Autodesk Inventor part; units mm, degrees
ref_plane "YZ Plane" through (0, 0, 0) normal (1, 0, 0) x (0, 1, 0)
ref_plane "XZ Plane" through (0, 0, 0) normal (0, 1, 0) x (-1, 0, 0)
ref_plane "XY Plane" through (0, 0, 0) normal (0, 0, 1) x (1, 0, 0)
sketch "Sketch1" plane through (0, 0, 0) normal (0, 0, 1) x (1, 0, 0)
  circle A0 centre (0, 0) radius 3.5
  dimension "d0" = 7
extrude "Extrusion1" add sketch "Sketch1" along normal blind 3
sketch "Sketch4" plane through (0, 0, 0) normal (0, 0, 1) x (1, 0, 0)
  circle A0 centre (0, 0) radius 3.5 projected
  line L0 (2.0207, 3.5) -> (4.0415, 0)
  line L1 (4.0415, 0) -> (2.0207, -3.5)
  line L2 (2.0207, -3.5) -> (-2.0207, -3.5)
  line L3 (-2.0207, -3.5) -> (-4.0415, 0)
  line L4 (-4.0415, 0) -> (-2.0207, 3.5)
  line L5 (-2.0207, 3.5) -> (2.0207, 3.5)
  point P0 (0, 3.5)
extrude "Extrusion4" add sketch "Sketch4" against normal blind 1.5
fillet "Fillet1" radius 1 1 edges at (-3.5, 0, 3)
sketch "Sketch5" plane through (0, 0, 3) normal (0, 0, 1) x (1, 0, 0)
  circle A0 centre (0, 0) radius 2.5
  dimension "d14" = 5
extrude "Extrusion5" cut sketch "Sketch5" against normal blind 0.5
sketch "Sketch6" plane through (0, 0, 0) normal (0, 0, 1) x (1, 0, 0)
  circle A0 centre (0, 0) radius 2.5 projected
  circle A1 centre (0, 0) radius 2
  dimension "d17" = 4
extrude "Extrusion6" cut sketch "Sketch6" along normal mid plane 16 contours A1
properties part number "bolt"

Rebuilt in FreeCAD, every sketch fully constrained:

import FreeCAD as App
import Part
import Sketcher
Q = App.Units.Quantity


def edges_at(feature, points):
    """Names of the edges that pass closest to the given points."""
    edges = feature.Shape.Edges
    near = lambda p: min(range(len(edges)), key=lambda i: edges[i].distToShape(Part.Vertex(*p))[0])
    return sorted({f"Edge{near(p) + 1}" for p in points})


def add_polygon(sketch, points):
    """Adds a closed chain of lines whose ends are joined by coincident constraints."""
    first, n = sketch.GeometryCount, len(points)
    for a, b in zip(points, points[1:] + points[:1]):
        sketch.addGeometry(Part.LineSegment(App.Vector(*a, 0), App.Vector(*b, 0)), False)
    for i in range(n):
        sketch.addConstraint(Sketcher.Constraint("Coincident", first + i, 2, first + (i + 1) % n, 1))

doc = App.newDocument("Part")
body = doc.addObject("PartDesign::Body", "Body")

# Sketch on XY plane
sketch1 = body.newObject("Sketcher::SketchObject", "Sketch")
sketch1.AttachmentSupport = (doc.getObject("XY_Plane"), [""])
sketch1.MapMode = "FlatFace"
sketch1.addGeometry(Part.Circle(App.Vector(0, 0, 0), App.Vector(0, 0, 1), 3.5), False)
sketch1.addConstraint([
    Sketcher.Constraint("Coincident", 0, 3, -1, 1),
    Sketcher.Constraint("Diameter", 0, Q("7 mm")),
])
pad1 = body.newObject("PartDesign::Pad", "Pad")
pad1.Profile = sketch1
pad1.Length = 3

# Sketch on XY plane
sketch2 = body.newObject("Sketcher::SketchObject", "Sketch001")
sketch2.AttachmentSupport = (doc.getObject("XY_Plane"), [""])
sketch2.MapMode = "FlatFace"
add_polygon(sketch2, [(4, 0), (2, 3.5), (-2, 3.5), (-4, 0), (-2, -3.5), (2, -3.5)])  # lines 0-5
sketch2.addConstraint([
    Sketcher.Constraint("Horizontal", 1),
    Sketcher.Constraint("Horizontal", 4),
    Sketcher.Constraint("Symmetric", 0, 2, 3, 2, -1, 1),
    Sketcher.Constraint("Symmetric", 2, 2, 5, 2, -1, 1),
    Sketcher.Constraint("PointOnObject", 2, 2, -1),
    Sketcher.Constraint("Parallel", 2, 5),
    Sketcher.Constraint("Vertical", 1, 2, 3, 2),
    Sketcher.Constraint("Angle", 0, Q("120.001 deg")),
    Sketcher.Constraint("DistanceY", 3, 2, 1, 2, Q("7 mm")),
    Sketcher.Constraint("DistanceX", 1, 2, 1, 1, Q("4.0414 mm")),
])
pad2 = body.newObject("PartDesign::Pad", "Pad001")
pad2.Profile = sketch2
pad2.Length = 1.5
pad2.Reversed = True
doc.recompute()

fillet = body.newObject("PartDesign::Fillet", "Fillet")
fillet.Base = (pad2, edges_at(pad2, [(-3.5, 0, 3)]))
fillet.Radius = 1

# Sketch on XY plane
sketch3 = body.newObject("Sketcher::SketchObject", "Sketch002")
sketch3.AttachmentSupport = (doc.getObject("XY_Plane"), [""])
sketch3.MapMode = "FlatFace"
sketch3.AttachmentOffset = App.Placement(App.Vector(0, 0, 3), App.Rotation())
sketch3.addGeometry(Part.Circle(App.Vector(0, 0, 0), App.Vector(0, 0, 1), 2.5), False)
sketch3.addConstraint([
    Sketcher.Constraint("Coincident", 0, 3, -1, 1),
    Sketcher.Constraint("Diameter", 0, Q("5 mm")),
])
pocket1 = body.newObject("PartDesign::Pocket", "Pocket")
pocket1.Profile = sketch3
pocket1.Length = 0.5

# Sketch on XY plane
sketch4 = body.newObject("Sketcher::SketchObject", "Sketch003")
sketch4.AttachmentSupport = (doc.getObject("XY_Plane"), [""])
sketch4.MapMode = "FlatFace"
sketch4.addGeometry(Part.Circle(App.Vector(0, 0, 0), App.Vector(0, 0, 1), 2), False)
sketch4.addConstraint([
    Sketcher.Constraint("Coincident", 0, 3, -1, 1),
    Sketcher.Constraint("Diameter", 0, Q("4 mm")),
])
pocket2 = body.newObject("PartDesign::Pocket", "Pocket001")
pocket2.Profile = sketch4
pocket2.Length = 16
pocket2.Midplane = True

doc.recompute()
